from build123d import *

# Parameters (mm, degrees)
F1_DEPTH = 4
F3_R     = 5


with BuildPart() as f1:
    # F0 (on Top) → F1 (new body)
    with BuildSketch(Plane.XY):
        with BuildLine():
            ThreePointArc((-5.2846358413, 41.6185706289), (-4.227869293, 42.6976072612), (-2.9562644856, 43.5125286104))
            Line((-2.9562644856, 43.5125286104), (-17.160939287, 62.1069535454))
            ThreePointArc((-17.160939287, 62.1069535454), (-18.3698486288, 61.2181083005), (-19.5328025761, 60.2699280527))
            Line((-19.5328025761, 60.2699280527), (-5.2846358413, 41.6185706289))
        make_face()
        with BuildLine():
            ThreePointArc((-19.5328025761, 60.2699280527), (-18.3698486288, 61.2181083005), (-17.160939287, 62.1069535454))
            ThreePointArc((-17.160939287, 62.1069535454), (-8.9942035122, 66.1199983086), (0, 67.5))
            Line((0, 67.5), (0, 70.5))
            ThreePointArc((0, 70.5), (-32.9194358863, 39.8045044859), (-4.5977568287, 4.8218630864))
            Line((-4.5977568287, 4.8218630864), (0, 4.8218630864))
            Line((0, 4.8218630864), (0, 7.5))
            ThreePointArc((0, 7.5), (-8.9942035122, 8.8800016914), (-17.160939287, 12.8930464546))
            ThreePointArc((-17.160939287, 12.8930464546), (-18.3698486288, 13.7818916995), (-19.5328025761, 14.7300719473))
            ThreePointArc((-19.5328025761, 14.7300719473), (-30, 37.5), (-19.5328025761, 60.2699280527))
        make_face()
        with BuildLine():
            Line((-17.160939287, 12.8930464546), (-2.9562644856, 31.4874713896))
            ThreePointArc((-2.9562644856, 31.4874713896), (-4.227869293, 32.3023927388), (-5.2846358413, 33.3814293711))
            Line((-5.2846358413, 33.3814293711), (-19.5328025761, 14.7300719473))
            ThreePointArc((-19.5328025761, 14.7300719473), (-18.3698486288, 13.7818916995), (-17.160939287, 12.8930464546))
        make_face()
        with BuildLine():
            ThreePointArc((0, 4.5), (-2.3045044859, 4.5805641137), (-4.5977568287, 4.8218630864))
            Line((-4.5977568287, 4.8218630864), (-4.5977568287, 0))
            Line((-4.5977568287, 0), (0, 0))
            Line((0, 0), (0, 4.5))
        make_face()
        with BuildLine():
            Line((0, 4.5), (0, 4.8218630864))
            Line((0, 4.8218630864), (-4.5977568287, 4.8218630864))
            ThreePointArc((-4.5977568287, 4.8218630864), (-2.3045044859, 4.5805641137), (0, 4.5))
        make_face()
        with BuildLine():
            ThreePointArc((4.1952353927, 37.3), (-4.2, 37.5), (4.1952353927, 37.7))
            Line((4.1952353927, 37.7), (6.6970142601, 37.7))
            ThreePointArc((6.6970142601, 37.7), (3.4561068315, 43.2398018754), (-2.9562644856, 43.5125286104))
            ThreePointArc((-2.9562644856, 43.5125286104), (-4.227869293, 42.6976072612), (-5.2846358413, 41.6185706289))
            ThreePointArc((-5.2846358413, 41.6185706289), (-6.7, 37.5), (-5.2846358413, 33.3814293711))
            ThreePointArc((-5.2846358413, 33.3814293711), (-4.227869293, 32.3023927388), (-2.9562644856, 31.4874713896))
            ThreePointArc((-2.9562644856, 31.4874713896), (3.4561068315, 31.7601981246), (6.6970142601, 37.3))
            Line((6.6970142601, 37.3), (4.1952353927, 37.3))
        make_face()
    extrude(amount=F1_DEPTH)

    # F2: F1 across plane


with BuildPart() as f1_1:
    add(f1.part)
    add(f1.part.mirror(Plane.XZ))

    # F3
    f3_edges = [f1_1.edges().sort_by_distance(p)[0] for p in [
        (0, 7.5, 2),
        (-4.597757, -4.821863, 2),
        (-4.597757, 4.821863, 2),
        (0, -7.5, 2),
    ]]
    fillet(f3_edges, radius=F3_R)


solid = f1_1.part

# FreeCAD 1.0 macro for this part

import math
import FreeCAD as App
import Part
import Sketcher
from FreeCAD import Vector
Q = App.Units.Quantity


def edges_at(feature, points):
    """Names of the edges that pass closest to the given points."""
    edges = feature.Shape.Edges
    near = lambda p: min(range(len(edges)), key=lambda i: edges[i].distToShape(Part.Vertex(*p))[0])
    return sorted({f"Edge{near(p) + 1}" for p in points})

doc = App.newDocument("Part")
body = doc.addObject("PartDesign::Body", "Body")

sketch1 = body.newObject("Sketcher::SketchObject", "Sketch")
sketch1.AttachmentSupport = (doc.getObject("XY_Plane"), [""])
sketch1.MapMode = "FlatFace"
sketch1.addGeometry(Part.LineSegment(Vector(-2.956264, 43.512529, 0), Vector(-17.160939, 62.106954, 0)), False)
sketch1.addGeometry(Part.ArcOfCircle(Part.Circle(Vector(0, 37.5, 0), Vector(0, 0, 1), 30), math.radians(90), math.radians(124.891997)), False)
sketch1.addGeometry(Part.LineSegment(Vector(0, 67.5, 0), Vector(0, 70.5, 0)), False)
sketch1.addGeometry(Part.ArcOfCircle(Part.Circle(Vector(0, 37.5, 0), Vector(0, 0, 1), 33), math.radians(90), math.radians(261.991155)), False)
sketch1.addGeometry(Part.LineSegment(Vector(-4.597757, 4.821863, 0), Vector(-4.597757, 0, 0)), False)
sketch1.addGeometry(Part.LineSegment(Vector(-4.597757, 0, 0), Vector(0, 0, 0)), False)
sketch1.addGeometry(Part.LineSegment(Vector(0, 0, 0), Vector(0, 7.5, 0)), False)
sketch1.addGeometry(Part.ArcOfCircle(Part.Circle(Vector(0, 37.5, 0), Vector(0, 0, 1), 30), math.radians(-124.891997), math.radians(-90)), False)
sketch1.addGeometry(Part.LineSegment(Vector(-17.160939, 12.893046, 0), Vector(-2.956264, 31.487471, 0)), False)
sketch1.addGeometry(Part.ArcOfCircle(Part.Circle(Vector(0, 37.5, 0), Vector(0, 0, 1), 6.7), math.radians(-116.18261), math.radians(-1.710576)), False)
sketch1.addGeometry(Part.LineSegment(Vector(6.697014, 37.3, 0), Vector(4.195235, 37.3, 0)), False)
sketch1.addGeometry(Part.ArcOfCircle(Part.Circle(Vector(0, 37.5, 0), Vector(0, 0, 1), 4.2), math.radians(2.729403), math.radians(357.270597)), False)
sketch1.addGeometry(Part.LineSegment(Vector(4.195235, 37.7, 0), Vector(6.697014, 37.7, 0)), False)
sketch1.addGeometry(Part.ArcOfCircle(Part.Circle(Vector(0, 37.5, 0), Vector(0, 0, 1), 6.7), math.radians(1.710576), math.radians(116.18261)), False)
sketch1.addGeometry(Part.LineSegment(Vector(-5.284636, 33.381429, 0), Vector(-19.532803, 14.730072, 0)), False)
sketch1.addGeometry(Part.ArcOfCircle(Part.Circle(Vector(0, 37.5, 0), Vector(0, 0, 1), 30), math.radians(130.624092), math.radians(229.375908)), False)
sketch1.addGeometry(Part.LineSegment(Vector(-19.532803, 60.269928, 0), Vector(-5.284636, 41.618571, 0)), False)
sketch1.addGeometry(Part.ArcOfCircle(Part.Circle(Vector(0, 37.5, 0), Vector(0, 0, 1), 6.7), math.radians(142.069001), math.radians(217.930999)), False)
sketch1.addConstraint(Sketcher.Constraint("Coincident", 0, 2, 1, 2))
sketch1.addConstraint(Sketcher.Constraint("Coincident", 1, 1, 2, 1))
sketch1.addConstraint(Sketcher.Constraint("Coincident", 2, 2, 3, 1))
sketch1.addConstraint(Sketcher.Constraint("Coincident", 3, 2, 4, 1))
sketch1.addConstraint(Sketcher.Constraint("Coincident", 4, 2, 5, 1))
sketch1.addConstraint(Sketcher.Constraint("Coincident", 5, 2, 6, 1))
sketch1.addConstraint(Sketcher.Constraint("Coincident", 6, 2, 7, 2))
sketch1.addConstraint(Sketcher.Constraint("Coincident", 7, 1, 8, 1))
sketch1.addConstraint(Sketcher.Constraint("Coincident", 8, 2, 9, 1))
sketch1.addConstraint(Sketcher.Constraint("Coincident", 9, 2, 10, 1))
sketch1.addConstraint(Sketcher.Constraint("Coincident", 10, 2, 11, 2))
sketch1.addConstraint(Sketcher.Constraint("Coincident", 11, 1, 12, 1))
sketch1.addConstraint(Sketcher.Constraint("Coincident", 12, 2, 13, 1))
sketch1.addConstraint(Sketcher.Constraint("Coincident", 13, 2, 0, 1))
sketch1.addConstraint(Sketcher.Constraint("Coincident", 14, 2, 15, 2))
sketch1.addConstraint(Sketcher.Constraint("Coincident", 15, 1, 16, 1))
sketch1.addConstraint(Sketcher.Constraint("Coincident", 16, 2, 17, 1))
sketch1.addConstraint(Sketcher.Constraint("Coincident", 17, 2, 14, 1))
sketch1.addConstraint(Sketcher.Constraint("Vertical", 2))
sketch1.addConstraint(Sketcher.Constraint("Vertical", 4))
sketch1.addConstraint(Sketcher.Constraint("Horizontal", 5))
sketch1.addConstraint(Sketcher.Constraint("Vertical", 6))
sketch1.addConstraint(Sketcher.Constraint("Horizontal", 10))
sketch1.addConstraint(Sketcher.Constraint("Horizontal", 12))
sketch1.addConstraint(Sketcher.Constraint("Coincident", 5, 2, -1, 1))
sketch1.addConstraint(Sketcher.Constraint("Coincident", 3, 3, 1, 3))
sketch1.addConstraint(Sketcher.Constraint("Coincident", 7, 3, 1, 3))
sketch1.addConstraint(Sketcher.Constraint("Coincident", 9, 3, 1, 3))
sketch1.addConstraint(Sketcher.Constraint("Coincident", 11, 3, 1, 3))
sketch1.addConstraint(Sketcher.Constraint("Coincident", 13, 3, 1, 3))
sketch1.addConstraint(Sketcher.Constraint("Coincident", 15, 3, 1, 3))
sketch1.addConstraint(Sketcher.Constraint("Coincident", 17, 3, 1, 3))
sketch1.addConstraint(Sketcher.Constraint("Equal", 1, 7))
sketch1.addConstraint(Sketcher.Constraint("Equal", 9, 13))
sketch1.addConstraint(Sketcher.Constraint("Equal", 7, 15))
sketch1.addConstraint(Sketcher.Constraint("Equal", 13, 17))
sketch1.addConstraint(Sketcher.Constraint("PointOnObject", 1, 3, -2))
sketch1.addConstraint(Sketcher.Constraint("PointOnObject", 1, 1, -2))
sketch1.addConstraint(Sketcher.Constraint("Parallel", 8, 14))
sketch1.addConstraint(Sketcher.Constraint("Parallel", 0, 16))
sketch1.addConstraint(Sketcher.Constraint("Vertical", 0, 2, 7, 1))
sketch1.addConstraint(Sketcher.Constraint("Vertical", 10, 2, 11, 1))
sketch1.addConstraint(Sketcher.Constraint("Vertical", 8, 2, 13, 2))
sketch1.addConstraint(Sketcher.Constraint("Vertical", 14, 2, 15, 1))
sketch1.addConstraint(Sketcher.Constraint("Radius", 1, Q("30 mm")))
sketch1.addConstraint(Sketcher.Constraint("Radius", 3, Q("33 mm")))
sketch1.addConstraint(Sketcher.Constraint("Radius", 9, Q("6.7 mm")))
sketch1.addConstraint(Sketcher.Constraint("Radius", 11, Q("4.2 mm")))
sketch1.addConstraint(Sketcher.Constraint("DistanceY", 6, 1, 6, 2, Q("7.5 mm")))
sketch1.addConstraint(Sketcher.Constraint("DistanceY", -1, 1, 9, 2, Q("37.3 mm")))
sketch1.addConstraint(Sketcher.Constraint("DistanceY", 14, 2, 8, 2, Q("16.757399 mm")))
sketch1.addConstraint(Sketcher.Constraint("Distance", 0, Q("23.399261 mm")))
sketch1.addConstraint(Sketcher.Constraint("DistanceX", 5, 1, 5, 2, Q("4.597757 mm")))
sketch1.addConstraint(Sketcher.Constraint("DistanceX", 0, 2, -1, 1, Q("17.160939 mm")))
pad1 = body.newObject("PartDesign::Pad", "Pad")
pad1.Profile = sketch1
pad1.Length = 4
body2 = doc.addObject("PartDesign::Body", "Body001")
doc.recompute()

body2.BaseFeature = body
doc.recompute()

mirroring = doc.addObject("Part::Mirroring", "Mirroring")
mirroring.Source = body
mirroring.Base = Vector(0, 0, 0)
mirroring.Normal = Vector(0, -1, 0)
body3 = doc.addObject("PartDesign::Body", "Body002")
body3.BaseFeature = mirroring
boolean = body2.newObject("PartDesign::Boolean", "Boolean")
boolean.Type = "Fuse"
boolean.addObjects([body3])
doc.recompute()

fillet = body2.newObject("PartDesign::Fillet", "Fillet")
fillet.Base = (boolean, edges_at(boolean, [
    (0, 7.5, 2),
    (-4.598, -4.822, 2),
    (-4.598, 4.822, 2),
    (0, -7.5, 2),
]))
fillet.Radius = 5
mirroring.Visibility = False

doc.recompute()
